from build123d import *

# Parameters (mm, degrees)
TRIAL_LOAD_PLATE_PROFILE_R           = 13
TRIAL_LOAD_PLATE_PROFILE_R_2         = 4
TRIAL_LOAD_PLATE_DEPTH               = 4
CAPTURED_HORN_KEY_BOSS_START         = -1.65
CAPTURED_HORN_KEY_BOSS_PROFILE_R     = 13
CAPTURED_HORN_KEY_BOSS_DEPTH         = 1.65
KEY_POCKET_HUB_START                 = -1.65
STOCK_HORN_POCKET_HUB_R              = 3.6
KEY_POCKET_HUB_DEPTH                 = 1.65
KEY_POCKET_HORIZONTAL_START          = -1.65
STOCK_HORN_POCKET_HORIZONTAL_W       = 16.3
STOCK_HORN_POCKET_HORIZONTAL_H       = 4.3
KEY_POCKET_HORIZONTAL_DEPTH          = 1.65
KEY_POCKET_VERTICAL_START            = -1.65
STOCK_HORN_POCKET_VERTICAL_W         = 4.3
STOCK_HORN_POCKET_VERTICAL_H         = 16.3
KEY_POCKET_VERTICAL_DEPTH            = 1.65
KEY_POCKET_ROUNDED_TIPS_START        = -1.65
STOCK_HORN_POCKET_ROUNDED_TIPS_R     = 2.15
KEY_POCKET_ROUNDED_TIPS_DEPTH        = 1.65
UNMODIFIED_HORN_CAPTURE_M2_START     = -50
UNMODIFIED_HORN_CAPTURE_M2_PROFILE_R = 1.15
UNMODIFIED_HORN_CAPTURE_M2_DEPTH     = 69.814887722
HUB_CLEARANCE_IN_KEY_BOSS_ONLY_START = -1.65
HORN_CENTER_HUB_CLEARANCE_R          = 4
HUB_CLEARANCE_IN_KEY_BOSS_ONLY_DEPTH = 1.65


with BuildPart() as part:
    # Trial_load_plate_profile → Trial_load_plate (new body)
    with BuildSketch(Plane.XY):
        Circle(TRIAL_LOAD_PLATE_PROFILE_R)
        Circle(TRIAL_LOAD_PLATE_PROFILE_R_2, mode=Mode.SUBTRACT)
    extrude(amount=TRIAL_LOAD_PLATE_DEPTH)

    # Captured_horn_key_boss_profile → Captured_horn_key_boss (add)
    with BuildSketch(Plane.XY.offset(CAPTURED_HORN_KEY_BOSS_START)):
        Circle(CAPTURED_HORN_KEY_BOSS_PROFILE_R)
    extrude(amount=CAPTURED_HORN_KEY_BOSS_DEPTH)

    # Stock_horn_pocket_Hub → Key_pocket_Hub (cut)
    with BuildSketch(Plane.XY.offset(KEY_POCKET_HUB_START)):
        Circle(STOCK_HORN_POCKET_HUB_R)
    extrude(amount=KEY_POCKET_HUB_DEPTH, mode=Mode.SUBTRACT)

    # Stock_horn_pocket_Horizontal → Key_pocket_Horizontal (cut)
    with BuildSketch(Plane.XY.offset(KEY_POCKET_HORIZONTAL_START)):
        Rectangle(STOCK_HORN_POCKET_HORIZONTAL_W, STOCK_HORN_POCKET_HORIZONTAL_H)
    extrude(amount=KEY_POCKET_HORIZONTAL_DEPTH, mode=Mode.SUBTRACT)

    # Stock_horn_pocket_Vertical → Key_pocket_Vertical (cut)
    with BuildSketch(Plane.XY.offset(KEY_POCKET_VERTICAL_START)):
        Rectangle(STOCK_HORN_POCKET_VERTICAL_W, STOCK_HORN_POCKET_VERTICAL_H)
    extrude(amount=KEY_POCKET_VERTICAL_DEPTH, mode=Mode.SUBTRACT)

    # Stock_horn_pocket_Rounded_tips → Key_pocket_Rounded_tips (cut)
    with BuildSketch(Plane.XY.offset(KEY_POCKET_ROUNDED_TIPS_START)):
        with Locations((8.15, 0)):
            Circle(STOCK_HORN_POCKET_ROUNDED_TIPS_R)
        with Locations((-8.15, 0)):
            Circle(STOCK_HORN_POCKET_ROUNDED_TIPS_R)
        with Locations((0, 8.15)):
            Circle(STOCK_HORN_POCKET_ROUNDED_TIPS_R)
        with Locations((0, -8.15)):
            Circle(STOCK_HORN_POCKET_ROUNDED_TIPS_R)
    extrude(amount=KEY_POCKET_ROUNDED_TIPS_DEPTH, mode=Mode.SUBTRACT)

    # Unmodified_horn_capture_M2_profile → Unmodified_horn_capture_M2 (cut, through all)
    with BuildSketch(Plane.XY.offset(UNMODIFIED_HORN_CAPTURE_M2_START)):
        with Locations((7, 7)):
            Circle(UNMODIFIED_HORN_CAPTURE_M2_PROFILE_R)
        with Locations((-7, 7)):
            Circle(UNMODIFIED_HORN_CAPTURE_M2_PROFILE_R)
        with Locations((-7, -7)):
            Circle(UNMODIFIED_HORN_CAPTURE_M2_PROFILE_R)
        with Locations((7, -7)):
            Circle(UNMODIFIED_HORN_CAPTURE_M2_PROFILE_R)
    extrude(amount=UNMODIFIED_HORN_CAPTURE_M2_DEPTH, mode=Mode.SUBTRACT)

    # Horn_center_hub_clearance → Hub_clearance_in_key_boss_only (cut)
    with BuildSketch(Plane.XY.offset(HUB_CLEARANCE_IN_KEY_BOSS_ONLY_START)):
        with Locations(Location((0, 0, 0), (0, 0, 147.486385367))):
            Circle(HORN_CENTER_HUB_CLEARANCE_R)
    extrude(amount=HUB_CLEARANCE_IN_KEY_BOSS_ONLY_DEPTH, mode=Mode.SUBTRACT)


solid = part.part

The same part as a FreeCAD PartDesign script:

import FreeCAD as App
import Part
import Sketcher
from FreeCAD import Vector


def add_polygon(sketch, points):
    """Adds a closed chain of lines whose ends are joined by coincident constraints."""
    first, n = sketch.GeometryCount, len(points)
    for a, b in zip(points, points[1:] + points[:1]):
        sketch.addGeometry(Part.LineSegment(App.Vector(*a, 0), App.Vector(*b, 0)), False)
    for i in range(n):
        sketch.addConstraint(Sketcher.Constraint("Coincident", first + i, 2, first + (i + 1) % n, 1))

doc = App.newDocument("Part")
body = doc.addObject("PartDesign::Body", "Body")

sketch1 = doc.addObject("Sketcher::SketchObject", "Sketch")
body.addObject(sketch1)
sketch1.AttachmentSupport = (doc.XY_Plane, [""])
sketch1.MapMode = "FlatFace"
sketch1.addGeometry([
    Part.Circle(Vector(0, 0, 0), Vector(0, 0, 1), 13),
    Part.Circle(Vector(0, 0, 0), Vector(0, 0, 1), 4),
], False)
sketch1.addConstraint([
    Sketcher.Constraint("Coincident", 0, 3, -1, 1),
    Sketcher.Constraint("Coincident", 1, 3, -1, 1),
    Sketcher.Constraint("Diameter", 0, 26.0),
    Sketcher.Constraint("Diameter", 1, 8.0),
])
pad1 = doc.addObject("PartDesign::Pad", "Pad")
body.addObject(pad1)
pad1.Profile = sketch1
pad1.Length = 4

sketch2 = doc.addObject("Sketcher::SketchObject", "Sketch001")
body.addObject(sketch2)
sketch2.AttachmentSupport = (doc.XY_Plane, [""])
sketch2.MapMode = "FlatFace"
sketch2.AttachmentOffset = App.Placement(Vector(0, 0, -1.65), App.Rotation())
sketch2.addGeometry(Part.Circle(Vector(0, 0, 0), Vector(0, 0, 1), 13), False)
sketch2.addConstraint([
    Sketcher.Constraint("Coincident", 0, 3, -1, 1),
    Sketcher.Constraint("Diameter", 0, 26.0),
])
pad2 = doc.addObject("PartDesign::Pad", "Pad001")
body.addObject(pad2)
pad2.Profile = sketch2
pad2.Length = 1.65

sketch3 = doc.addObject("Sketcher::SketchObject", "Sketch002")
body.addObject(sketch3)
sketch3.AttachmentSupport = (doc.XY_Plane, [""])
sketch3.MapMode = "FlatFace"
sketch3.AttachmentOffset = App.Placement(Vector(0, 0, -1.65), App.Rotation())
sketch3.addGeometry(Part.Circle(Vector(0, 0, 0), Vector(0, 0, 1), 3.6), False)
sketch3.addConstraint([
    Sketcher.Constraint("Coincident", 0, 3, -1, 1),
    Sketcher.Constraint("Diameter", 0, 7.2),
])
pocket1 = doc.addObject("PartDesign::Pocket", "Pocket")
body.addObject(pocket1)
pocket1.Profile = sketch3
pocket1.Length = 1.65
pocket1.Reversed = True

sketch4 = doc.addObject("Sketcher::SketchObject", "Sketch003")
body.addObject(sketch4)
sketch4.AttachmentSupport = (doc.XY_Plane, [""])
sketch4.MapMode = "FlatFace"
sketch4.AttachmentOffset = App.Placement(Vector(0, 0, -1.65), App.Rotation())
add_polygon(sketch4, [(-8.2, 2.1), (-8.2, -2.1), (8.2, -2.1), (8.2, 2.1)])
sketch4.addConstraint([
    Sketcher.Constraint("Vertical", 0),
    Sketcher.Constraint("Horizontal", 1),
    Sketcher.Constraint("Vertical", 2),
    Sketcher.Constraint("Horizontal", 3),
    Sketcher.Constraint("Symmetric", 0, 2, 2, 2, -1, 1),
    Sketcher.Constraint("DistanceX", 1, 1, 1, 2, 16.3),
    Sketcher.Constraint("DistanceY", 0, 2, 0, 1, 4.3),
])
pocket2 = doc.addObject("PartDesign::Pocket", "Pocket001")
body.addObject(pocket2)
pocket2.Profile = sketch4
pocket2.Length = 1.65
pocket2.Reversed = True

sketch5 = doc.addObject("Sketcher::SketchObject", "Sketch004")
body.addObject(sketch5)
sketch5.AttachmentSupport = (doc.XY_Plane, [""])
sketch5.MapMode = "FlatFace"
sketch5.AttachmentOffset = App.Placement(Vector(0, 0, -1.65), App.Rotation())
add_polygon(sketch5, [(-2.1, 8.2), (-2.1, -8.2), (2.1, -8.2), (2.1, 8.2)])
sketch5.addConstraint([
    Sketcher.Constraint("Vertical", 0),
    Sketcher.Constraint("Horizontal", 1),
    Sketcher.Constraint("Vertical", 2),
    Sketcher.Constraint("Horizontal", 3),
    Sketcher.Constraint("Symmetric", 0, 2, 2, 2, -1, 1),
    Sketcher.Constraint("DistanceX", 1, 1, 1, 2, 4.3),
    Sketcher.Constraint("DistanceY", 0, 2, 0, 1, 16.3),
])
pocket3 = doc.addObject("PartDesign::Pocket", "Pocket002")
body.addObject(pocket3)
pocket3.Profile = sketch5
pocket3.Length = 1.65
pocket3.Reversed = True

sketch6 = doc.addObject("Sketcher::SketchObject", "Sketch005")
body.addObject(sketch6)
sketch6.AttachmentSupport = (doc.XY_Plane, [""])
sketch6.MapMode = "FlatFace"
sketch6.AttachmentOffset = App.Placement(Vector(0, 0, -1.65), App.Rotation())
sketch6.addGeometry([
    Part.Circle(Vector(8.2, 0, 0), Vector(0, 0, 1), 2.1),
    Part.Circle(Vector(-8.2, 0, 0), Vector(0, 0, 1), 2.1),
    Part.Circle(Vector(0, 8.2, 0), Vector(0, 0, 1), 2.1),
    Part.Circle(Vector(0, -8.2, 0), Vector(0, 0, 1), 2.1),
], False)
sketch6.addConstraint([
    Sketcher.Constraint("Equal", 0, 1),
    Sketcher.Constraint("Equal", 1, 2),
    Sketcher.Constraint("Equal", 2, 3),
    Sketcher.Constraint("Symmetric", 0, 3, 1, 3, -1, 1),
    Sketcher.Constraint("Symmetric", 2, 3, 3, 3, -1, 1),
    Sketcher.Constraint("PointOnObject", 0, 3, -1),
    Sketcher.Constraint("PointOnObject", 2, 3, -2),
    Sketcher.Constraint("Diameter", 0, 4.3),
    Sketcher.Constraint("DistanceX", 1, 3, 0, 3, 16.3),
    Sketcher.Constraint("DistanceY", 3, 3, 2, 3, 16.3),
])
pocket4 = doc.addObject("PartDesign::Pocket", "Pocket003")
body.addObject(pocket4)
pocket4.Profile = sketch6
pocket4.Length = 1.65
pocket4.Reversed = True

sketch7 = doc.addObject("Sketcher::SketchObject", "Sketch006")
body.addObject(sketch7)
sketch7.AttachmentSupport = (doc.XY_Plane, [""])
sketch7.MapMode = "FlatFace"
sketch7.AttachmentOffset = App.Placement(Vector(0, 0, -50), App.Rotation())
sketch7.addGeometry([
    Part.Circle(Vector(7, 7, 0), Vector(0, 0, 1), 1.1),
    Part.Circle(Vector(-7, 7, 0), Vector(0, 0, 1), 1.1),
    Part.Circle(Vector(-7, -7, 0), Vector(0, 0, 1), 1.1),
    Part.Circle(Vector(7, -7, 0), Vector(0, 0, 1), 1.1),
], False)
sketch7.addConstraint([
    Sketcher.Constraint("Equal", 0, 1),
    Sketcher.Constraint("Equal", 1, 2),
    Sketcher.Constraint("Equal", 2, 3),
    Sketcher.Constraint("Symmetric", 0, 3, 2, 3, -1, 1),
    Sketcher.Constraint("Symmetric", 1, 3, 3, 3, -1, 1),
    Sketcher.Constraint("Symmetric", 0, 3, 1, 3, -2),
    Sketcher.Constraint("Diameter", 0, 2.3),
    Sketcher.Constraint("DistanceX", -1, 1, 0, 3, 7.0),
    Sketcher.Constraint("DistanceY", -1, 1, 0, 3, 7.0),
])
pocket5 = doc.addObject("PartDesign::Pocket", "Pocket004")
body.addObject(pocket5)
pocket5.Profile = sketch7
pocket5.Type = "ThroughAll"
pocket5.Reversed = True

sketch8 = doc.addObject("Sketcher::SketchObject", "Sketch007")
body.addObject(sketch8)
sketch8.AttachmentSupport = (doc.XY_Plane, [""])
sketch8.MapMode = "FlatFace"
sketch8.AttachmentOffset = App.Placement(Vector(0, 0, -1.65), App.Rotation())
sketch8.addGeometry(Part.Circle(Vector(0, 0, 0), Vector(0, 0, 1), 4), False)
sketch8.addConstraint([
    Sketcher.Constraint("Coincident", 0, 3, -1, 1),
    Sketcher.Constraint("Diameter", 0, 8.0),
])
pocket6 = doc.addObject("PartDesign::Pocket", "Pocket005")
body.addObject(pocket6)
pocket6.Profile = sketch8
pocket6.Length = 1.65
pocket6.Reversed = True

doc.recompute()
